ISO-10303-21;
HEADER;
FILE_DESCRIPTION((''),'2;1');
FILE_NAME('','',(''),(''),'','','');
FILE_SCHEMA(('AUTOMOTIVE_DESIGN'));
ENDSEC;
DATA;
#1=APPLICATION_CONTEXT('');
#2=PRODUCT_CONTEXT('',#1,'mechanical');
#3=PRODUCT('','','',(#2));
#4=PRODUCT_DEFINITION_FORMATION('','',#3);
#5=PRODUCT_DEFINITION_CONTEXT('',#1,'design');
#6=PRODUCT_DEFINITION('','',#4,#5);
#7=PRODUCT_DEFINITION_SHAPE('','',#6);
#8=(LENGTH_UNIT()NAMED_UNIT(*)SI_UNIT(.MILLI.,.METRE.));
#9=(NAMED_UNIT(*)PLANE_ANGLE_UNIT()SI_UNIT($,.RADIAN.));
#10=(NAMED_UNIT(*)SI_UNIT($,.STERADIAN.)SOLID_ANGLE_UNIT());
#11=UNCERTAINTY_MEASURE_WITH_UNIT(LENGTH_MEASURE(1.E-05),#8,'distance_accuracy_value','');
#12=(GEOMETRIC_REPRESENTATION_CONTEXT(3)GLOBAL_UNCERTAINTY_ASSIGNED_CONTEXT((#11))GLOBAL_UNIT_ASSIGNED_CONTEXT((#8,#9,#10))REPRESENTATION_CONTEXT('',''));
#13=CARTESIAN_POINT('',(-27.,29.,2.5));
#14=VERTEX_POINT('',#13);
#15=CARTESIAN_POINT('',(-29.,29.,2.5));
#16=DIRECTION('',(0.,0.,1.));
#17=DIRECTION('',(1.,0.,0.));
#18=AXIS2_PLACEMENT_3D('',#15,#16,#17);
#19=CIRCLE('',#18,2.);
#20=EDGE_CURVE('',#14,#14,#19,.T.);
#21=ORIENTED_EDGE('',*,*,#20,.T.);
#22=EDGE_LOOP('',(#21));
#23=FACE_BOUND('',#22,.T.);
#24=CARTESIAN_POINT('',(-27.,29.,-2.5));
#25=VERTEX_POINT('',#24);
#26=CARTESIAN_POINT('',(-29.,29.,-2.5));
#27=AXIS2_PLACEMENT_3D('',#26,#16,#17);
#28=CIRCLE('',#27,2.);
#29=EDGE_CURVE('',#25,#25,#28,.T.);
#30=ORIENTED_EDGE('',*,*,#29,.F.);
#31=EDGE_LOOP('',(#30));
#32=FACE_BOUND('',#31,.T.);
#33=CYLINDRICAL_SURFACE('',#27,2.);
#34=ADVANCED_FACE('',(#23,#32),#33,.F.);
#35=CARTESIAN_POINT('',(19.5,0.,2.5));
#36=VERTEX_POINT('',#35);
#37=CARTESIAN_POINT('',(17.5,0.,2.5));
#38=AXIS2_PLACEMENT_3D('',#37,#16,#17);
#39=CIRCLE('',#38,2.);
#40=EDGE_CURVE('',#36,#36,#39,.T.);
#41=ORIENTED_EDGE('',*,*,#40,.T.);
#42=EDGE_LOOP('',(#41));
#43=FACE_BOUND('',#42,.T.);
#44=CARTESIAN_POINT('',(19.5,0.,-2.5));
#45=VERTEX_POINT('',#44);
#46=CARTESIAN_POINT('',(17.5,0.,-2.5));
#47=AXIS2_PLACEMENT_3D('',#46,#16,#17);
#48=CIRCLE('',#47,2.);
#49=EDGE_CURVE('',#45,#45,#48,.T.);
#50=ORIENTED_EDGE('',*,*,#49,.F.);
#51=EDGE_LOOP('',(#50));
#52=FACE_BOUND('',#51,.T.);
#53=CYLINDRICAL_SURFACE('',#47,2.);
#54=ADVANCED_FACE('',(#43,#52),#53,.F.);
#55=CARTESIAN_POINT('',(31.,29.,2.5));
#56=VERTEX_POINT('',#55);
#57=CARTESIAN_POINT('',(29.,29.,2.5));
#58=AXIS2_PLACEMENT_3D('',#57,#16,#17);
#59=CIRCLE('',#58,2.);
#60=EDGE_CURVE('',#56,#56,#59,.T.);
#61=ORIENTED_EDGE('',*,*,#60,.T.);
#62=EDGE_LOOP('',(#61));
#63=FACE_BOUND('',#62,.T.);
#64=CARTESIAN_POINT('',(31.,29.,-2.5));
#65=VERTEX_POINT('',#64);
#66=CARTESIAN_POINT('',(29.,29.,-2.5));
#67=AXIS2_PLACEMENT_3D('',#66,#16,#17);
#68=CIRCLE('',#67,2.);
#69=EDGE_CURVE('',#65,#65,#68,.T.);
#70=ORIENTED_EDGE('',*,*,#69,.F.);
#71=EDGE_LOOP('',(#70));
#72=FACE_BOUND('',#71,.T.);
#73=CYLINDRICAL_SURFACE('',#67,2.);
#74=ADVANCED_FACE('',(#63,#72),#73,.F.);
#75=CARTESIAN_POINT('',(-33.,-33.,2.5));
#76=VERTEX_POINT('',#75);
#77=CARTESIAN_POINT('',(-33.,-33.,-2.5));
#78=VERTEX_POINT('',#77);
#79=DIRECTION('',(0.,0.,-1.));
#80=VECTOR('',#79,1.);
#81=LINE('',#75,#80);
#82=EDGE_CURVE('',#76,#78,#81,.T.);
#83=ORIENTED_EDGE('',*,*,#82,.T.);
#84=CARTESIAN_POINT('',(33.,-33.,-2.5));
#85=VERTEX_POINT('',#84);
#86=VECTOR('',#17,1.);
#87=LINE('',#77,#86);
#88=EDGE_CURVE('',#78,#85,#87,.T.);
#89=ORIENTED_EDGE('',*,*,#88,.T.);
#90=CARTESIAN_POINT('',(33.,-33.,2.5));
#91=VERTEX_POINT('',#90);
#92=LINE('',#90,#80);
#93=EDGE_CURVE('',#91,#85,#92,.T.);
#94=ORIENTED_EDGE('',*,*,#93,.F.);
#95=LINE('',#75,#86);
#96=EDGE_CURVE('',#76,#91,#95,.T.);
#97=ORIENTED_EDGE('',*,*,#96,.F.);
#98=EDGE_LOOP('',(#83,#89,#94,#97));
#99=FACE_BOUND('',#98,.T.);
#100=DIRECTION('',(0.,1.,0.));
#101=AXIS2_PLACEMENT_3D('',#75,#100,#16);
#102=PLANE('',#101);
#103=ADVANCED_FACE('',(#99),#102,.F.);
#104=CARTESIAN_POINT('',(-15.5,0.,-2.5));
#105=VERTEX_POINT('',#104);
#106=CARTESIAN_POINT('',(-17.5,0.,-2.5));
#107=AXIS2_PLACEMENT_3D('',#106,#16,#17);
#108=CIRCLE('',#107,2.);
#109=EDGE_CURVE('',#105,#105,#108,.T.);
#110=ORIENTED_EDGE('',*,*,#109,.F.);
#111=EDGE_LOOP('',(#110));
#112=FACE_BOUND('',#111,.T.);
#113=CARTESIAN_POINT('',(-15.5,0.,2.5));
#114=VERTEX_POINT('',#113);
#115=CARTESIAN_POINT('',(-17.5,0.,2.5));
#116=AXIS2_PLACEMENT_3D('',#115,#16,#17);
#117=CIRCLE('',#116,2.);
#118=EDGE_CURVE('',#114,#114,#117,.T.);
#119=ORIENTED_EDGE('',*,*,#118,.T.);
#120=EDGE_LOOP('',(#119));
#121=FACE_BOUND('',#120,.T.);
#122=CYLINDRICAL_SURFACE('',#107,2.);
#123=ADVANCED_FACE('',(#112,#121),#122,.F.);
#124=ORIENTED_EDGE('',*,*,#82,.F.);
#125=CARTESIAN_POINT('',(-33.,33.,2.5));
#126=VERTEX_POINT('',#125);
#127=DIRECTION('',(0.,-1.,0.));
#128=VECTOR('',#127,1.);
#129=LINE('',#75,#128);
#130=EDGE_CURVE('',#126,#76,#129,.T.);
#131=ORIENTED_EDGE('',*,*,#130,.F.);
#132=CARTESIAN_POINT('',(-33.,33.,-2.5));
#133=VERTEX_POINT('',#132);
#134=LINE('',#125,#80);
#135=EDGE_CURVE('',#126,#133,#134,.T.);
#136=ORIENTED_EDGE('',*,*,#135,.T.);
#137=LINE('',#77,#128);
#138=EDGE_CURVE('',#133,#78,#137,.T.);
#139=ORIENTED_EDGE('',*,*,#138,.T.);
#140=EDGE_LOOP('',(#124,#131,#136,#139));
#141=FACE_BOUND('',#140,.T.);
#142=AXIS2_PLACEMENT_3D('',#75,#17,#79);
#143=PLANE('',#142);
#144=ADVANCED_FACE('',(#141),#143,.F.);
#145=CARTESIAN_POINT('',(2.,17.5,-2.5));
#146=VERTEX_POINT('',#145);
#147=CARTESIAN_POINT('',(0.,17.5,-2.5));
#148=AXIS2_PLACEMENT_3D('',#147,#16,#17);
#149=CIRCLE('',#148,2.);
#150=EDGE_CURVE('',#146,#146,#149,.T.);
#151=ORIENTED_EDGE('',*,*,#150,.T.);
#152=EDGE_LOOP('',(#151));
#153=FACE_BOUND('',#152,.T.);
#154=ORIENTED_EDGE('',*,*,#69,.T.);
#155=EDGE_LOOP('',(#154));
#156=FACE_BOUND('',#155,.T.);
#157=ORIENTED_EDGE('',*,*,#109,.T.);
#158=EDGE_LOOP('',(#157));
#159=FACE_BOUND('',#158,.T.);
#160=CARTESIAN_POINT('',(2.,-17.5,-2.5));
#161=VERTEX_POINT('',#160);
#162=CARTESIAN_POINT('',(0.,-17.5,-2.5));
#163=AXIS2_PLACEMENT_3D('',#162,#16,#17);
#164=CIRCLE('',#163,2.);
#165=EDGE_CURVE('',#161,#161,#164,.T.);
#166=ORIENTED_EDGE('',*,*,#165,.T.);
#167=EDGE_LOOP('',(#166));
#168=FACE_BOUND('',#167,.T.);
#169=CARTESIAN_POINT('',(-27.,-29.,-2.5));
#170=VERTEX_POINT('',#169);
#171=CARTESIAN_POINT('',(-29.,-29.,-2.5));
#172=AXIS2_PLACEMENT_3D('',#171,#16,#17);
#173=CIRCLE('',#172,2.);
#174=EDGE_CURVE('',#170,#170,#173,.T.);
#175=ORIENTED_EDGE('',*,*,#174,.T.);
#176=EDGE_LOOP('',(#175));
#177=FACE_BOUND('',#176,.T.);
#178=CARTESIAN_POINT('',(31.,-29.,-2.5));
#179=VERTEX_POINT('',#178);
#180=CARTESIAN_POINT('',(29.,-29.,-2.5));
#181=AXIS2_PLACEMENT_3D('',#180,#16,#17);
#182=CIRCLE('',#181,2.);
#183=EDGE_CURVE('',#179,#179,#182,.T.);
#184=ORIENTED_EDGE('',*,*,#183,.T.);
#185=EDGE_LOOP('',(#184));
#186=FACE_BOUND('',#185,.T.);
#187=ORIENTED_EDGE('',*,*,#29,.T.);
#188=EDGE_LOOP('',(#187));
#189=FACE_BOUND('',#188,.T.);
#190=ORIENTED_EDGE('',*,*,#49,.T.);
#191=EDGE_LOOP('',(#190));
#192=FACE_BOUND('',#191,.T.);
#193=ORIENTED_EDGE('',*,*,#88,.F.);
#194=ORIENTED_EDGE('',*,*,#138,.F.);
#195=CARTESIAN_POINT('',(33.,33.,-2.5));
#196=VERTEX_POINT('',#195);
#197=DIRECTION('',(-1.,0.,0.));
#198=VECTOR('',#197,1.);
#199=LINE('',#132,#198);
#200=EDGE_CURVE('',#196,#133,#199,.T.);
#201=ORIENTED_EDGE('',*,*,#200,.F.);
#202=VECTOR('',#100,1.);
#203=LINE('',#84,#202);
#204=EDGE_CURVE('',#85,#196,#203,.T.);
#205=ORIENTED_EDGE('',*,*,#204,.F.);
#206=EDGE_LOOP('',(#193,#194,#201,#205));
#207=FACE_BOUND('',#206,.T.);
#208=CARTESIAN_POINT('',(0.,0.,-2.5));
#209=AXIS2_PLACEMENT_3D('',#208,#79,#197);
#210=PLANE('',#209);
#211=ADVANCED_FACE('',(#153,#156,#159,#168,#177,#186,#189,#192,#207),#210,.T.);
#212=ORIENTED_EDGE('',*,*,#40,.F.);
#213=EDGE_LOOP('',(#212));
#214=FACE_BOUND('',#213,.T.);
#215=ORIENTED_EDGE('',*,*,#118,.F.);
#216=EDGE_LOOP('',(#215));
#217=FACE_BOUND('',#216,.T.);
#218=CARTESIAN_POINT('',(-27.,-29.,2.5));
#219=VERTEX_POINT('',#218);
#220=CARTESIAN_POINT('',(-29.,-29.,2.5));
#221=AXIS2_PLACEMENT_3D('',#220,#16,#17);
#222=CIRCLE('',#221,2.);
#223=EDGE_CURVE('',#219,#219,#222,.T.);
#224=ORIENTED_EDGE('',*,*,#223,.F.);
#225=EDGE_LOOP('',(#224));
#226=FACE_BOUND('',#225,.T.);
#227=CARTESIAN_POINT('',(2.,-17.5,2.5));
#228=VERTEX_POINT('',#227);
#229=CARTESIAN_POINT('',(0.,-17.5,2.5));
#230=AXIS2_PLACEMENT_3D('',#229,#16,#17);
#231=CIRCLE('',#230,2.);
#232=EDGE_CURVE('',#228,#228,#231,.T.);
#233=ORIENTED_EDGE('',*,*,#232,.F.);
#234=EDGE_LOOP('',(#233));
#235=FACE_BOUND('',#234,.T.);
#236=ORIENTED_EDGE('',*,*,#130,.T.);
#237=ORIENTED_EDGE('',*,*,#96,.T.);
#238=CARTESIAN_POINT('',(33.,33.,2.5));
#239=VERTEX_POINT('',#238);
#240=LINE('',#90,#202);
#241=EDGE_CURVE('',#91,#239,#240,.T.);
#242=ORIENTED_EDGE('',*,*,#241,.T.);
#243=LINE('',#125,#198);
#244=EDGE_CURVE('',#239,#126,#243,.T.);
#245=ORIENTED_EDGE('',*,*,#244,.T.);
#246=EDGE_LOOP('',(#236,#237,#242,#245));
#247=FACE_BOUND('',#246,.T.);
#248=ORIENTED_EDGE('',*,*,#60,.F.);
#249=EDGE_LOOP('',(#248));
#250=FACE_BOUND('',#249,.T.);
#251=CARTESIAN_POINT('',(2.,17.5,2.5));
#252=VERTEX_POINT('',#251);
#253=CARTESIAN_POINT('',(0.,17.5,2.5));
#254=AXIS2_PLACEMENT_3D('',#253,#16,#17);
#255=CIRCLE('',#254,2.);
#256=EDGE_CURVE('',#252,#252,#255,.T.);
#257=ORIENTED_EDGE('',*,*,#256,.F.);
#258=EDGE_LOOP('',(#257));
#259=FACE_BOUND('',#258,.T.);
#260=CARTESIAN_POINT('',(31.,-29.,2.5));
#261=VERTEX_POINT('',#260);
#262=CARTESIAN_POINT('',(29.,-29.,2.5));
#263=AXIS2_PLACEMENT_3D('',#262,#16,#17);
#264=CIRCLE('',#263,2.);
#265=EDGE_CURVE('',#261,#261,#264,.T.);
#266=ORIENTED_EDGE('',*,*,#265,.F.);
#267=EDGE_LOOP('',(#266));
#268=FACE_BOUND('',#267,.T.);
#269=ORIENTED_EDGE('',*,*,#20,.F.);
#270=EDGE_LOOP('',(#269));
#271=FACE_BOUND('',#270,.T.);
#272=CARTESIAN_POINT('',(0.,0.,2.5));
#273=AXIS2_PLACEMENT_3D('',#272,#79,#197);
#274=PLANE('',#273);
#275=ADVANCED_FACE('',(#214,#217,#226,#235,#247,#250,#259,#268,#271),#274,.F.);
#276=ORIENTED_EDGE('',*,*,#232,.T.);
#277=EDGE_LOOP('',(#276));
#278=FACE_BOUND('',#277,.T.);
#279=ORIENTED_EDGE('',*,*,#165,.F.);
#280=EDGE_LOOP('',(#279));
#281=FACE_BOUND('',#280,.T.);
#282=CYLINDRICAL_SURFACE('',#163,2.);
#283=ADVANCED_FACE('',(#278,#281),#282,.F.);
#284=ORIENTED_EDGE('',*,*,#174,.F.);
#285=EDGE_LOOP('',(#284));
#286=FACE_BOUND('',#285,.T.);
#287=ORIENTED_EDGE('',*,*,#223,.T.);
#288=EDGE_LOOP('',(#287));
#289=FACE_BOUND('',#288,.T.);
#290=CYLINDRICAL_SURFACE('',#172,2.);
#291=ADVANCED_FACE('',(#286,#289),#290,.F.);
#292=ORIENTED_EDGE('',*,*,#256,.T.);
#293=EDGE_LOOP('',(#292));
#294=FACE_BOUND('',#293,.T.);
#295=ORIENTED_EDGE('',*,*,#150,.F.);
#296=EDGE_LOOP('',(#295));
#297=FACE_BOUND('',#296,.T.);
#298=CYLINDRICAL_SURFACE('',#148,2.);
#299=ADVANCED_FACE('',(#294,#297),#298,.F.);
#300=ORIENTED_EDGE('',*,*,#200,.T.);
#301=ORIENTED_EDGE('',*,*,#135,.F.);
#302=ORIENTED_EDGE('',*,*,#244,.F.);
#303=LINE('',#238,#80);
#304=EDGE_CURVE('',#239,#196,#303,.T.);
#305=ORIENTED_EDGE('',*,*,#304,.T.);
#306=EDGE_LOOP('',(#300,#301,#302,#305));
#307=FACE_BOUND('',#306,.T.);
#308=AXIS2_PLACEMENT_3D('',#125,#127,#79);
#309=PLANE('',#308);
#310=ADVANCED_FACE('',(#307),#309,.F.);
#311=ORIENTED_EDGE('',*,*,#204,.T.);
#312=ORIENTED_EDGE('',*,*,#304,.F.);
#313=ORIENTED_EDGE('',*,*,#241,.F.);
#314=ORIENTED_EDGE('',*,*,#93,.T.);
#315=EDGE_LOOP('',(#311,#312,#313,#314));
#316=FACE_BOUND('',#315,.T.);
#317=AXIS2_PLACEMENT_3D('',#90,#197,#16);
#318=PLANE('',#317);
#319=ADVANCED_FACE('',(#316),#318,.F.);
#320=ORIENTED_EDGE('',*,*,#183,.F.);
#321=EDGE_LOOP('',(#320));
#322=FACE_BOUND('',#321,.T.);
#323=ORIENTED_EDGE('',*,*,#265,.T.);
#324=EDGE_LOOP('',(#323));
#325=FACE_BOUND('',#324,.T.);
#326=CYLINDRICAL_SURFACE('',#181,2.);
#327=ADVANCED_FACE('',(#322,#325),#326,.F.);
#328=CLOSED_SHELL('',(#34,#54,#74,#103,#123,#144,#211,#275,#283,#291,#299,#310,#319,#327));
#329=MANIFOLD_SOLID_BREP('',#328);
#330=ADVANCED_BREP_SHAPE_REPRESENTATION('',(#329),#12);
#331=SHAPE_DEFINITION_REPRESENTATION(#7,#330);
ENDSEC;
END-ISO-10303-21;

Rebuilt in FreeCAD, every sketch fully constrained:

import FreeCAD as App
import Part
import Sketcher

doc = App.newDocument("Part")
body = doc.addObject("PartDesign::Body", "Body")

# Sketch on XY plane
sketch1 = body.newObject("Sketcher::SketchObject", "Sketch")
sketch1.AttachmentSupport = (doc.getObject("XY_Plane"), [""])
sketch1.MapMode = "FlatFace"
sketch1.addGeometry([
    Part.LineSegment(App.Vector(-33, 33, 0), App.Vector(-33, -33, 0)),
    Part.LineSegment(App.Vector(-33, -33, 0), App.Vector(33, -33, 0)),
    Part.LineSegment(App.Vector(33, -33, 0), App.Vector(33, 33, 0)),
    Part.LineSegment(App.Vector(33, 33, 0), App.Vector(-33, 33, 0)),
], False)
sketch1.addConstraint([
    Sketcher.Constraint("Coincident", 0, 2, 1, 1),
    Sketcher.Constraint("Coincident", 1, 2, 2, 1),
    Sketcher.Constraint("Coincident", 2, 2, 3, 1),
    Sketcher.Constraint("Coincident", 3, 2, 0, 1),
    Sketcher.Constraint("Vertical", 0),
    Sketcher.Constraint("Horizontal", 1),
    Sketcher.Constraint("Vertical", 2),
    Sketcher.Constraint("Horizontal", 3),
    Sketcher.Constraint("Symmetric", 0, 2, 2, 2, -1, 1),
    Sketcher.Constraint("Equal", 3, 0),
    Sketcher.Constraint("DistanceX", 1, 1, 1, 2, 66.0),
])
pad1 = body.newObject("PartDesign::Pad", "Pad")
pad1.Profile = sketch1
pad1.Length = 5
pad1.Midplane = True

# Sketch on XY plane
sketch2 = body.newObject("Sketcher::SketchObject", "Sketch001")
sketch2.AttachmentSupport = (doc.getObject("XY_Plane"), [""])
sketch2.MapMode = "FlatFace"
sketch2.AttachmentOffset = App.Placement(App.Vector(0, 0, 2.5), App.Rotation())
sketch2.addGeometry([
    Part.Circle(App.Vector(-29, 29, 0), App.Vector(0, 0, 1), 2),
    Part.Circle(App.Vector(29, 29, 0), App.Vector(0, 0, 1), 2),
    Part.Circle(App.Vector(29, -29, 0), App.Vector(0, 0, 1), 2),
    Part.Circle(App.Vector(-29, -29, 0), App.Vector(0, 0, 1), 2),
], False)
sketch2.addConstraint([
    Sketcher.Constraint("Equal", 0, 1),
    Sketcher.Constraint("Equal", 1, 2),
    Sketcher.Constraint("Equal", 2, 3),
    Sketcher.Constraint("Symmetric", 0, 3, 2, 3, -1, 1),
    Sketcher.Constraint("Symmetric", 1, 3, 3, 3, -1, 1),
    Sketcher.Constraint("Symmetric", 0, 3, 1, 3, -2),
    Sketcher.Constraint("Diameter", 0, 4.0),
    Sketcher.Constraint("DistanceX", 0, 3, -1, 1, 29.0),
    Sketcher.Constraint("DistanceY", -1, 1, 0, 3, 29.0),
])
pocket1 = body.newObject("PartDesign::Pocket", "Pocket")
pocket1.Profile = sketch2
pocket1.Type = "ThroughAll"

# Sketch on XY plane
sketch3 = body.newObject("Sketcher::SketchObject", "Sketch002")
sketch3.AttachmentSupport = (doc.getObject("XY_Plane"), [""])
sketch3.MapMode = "FlatFace"
sketch3.AttachmentOffset = App.Placement(App.Vector(0, 0, 2.5), App.Rotation())
sketch3.addGeometry([
    Part.Circle(App.Vector(0, 17.5, 0), App.Vector(0, 0, 1), 2),
    Part.Circle(App.Vector(17.5, 0, 0), App.Vector(0, 0, 1), 2),
    Part.Circle(App.Vector(0, -17.5, 0), App.Vector(0, 0, 1), 2),
    Part.Circle(App.Vector(-17.5, 0, 0), App.Vector(0, 0, 1), 2),
], False)
sketch3.addConstraint([
    Sketcher.Constraint("Equal", 0, 1),
    Sketcher.Constraint("Equal", 1, 2),
    Sketcher.Constraint("Equal", 2, 3),
    Sketcher.Constraint("Symmetric", 0, 3, 2, 3, -1, 1),
    Sketcher.Constraint("Symmetric", 1, 3, 3, 3, -1, 1),
    Sketcher.Constraint("PointOnObject", 0, 3, -2),
    Sketcher.Constraint("PointOnObject", 1, 3, -1),
    Sketcher.Constraint("Diameter", 0, 4.0),
    Sketcher.Constraint("DistanceY", 2, 3, 0, 3, 35.0),
    Sketcher.Constraint("DistanceX", 3, 3, 1, 3, 35.0),
])
pocket2 = body.newObject("PartDesign::Pocket", "Pocket001")
pocket2.Profile = sketch3
pocket2.Type = "ThroughAll"

doc.recompute()
